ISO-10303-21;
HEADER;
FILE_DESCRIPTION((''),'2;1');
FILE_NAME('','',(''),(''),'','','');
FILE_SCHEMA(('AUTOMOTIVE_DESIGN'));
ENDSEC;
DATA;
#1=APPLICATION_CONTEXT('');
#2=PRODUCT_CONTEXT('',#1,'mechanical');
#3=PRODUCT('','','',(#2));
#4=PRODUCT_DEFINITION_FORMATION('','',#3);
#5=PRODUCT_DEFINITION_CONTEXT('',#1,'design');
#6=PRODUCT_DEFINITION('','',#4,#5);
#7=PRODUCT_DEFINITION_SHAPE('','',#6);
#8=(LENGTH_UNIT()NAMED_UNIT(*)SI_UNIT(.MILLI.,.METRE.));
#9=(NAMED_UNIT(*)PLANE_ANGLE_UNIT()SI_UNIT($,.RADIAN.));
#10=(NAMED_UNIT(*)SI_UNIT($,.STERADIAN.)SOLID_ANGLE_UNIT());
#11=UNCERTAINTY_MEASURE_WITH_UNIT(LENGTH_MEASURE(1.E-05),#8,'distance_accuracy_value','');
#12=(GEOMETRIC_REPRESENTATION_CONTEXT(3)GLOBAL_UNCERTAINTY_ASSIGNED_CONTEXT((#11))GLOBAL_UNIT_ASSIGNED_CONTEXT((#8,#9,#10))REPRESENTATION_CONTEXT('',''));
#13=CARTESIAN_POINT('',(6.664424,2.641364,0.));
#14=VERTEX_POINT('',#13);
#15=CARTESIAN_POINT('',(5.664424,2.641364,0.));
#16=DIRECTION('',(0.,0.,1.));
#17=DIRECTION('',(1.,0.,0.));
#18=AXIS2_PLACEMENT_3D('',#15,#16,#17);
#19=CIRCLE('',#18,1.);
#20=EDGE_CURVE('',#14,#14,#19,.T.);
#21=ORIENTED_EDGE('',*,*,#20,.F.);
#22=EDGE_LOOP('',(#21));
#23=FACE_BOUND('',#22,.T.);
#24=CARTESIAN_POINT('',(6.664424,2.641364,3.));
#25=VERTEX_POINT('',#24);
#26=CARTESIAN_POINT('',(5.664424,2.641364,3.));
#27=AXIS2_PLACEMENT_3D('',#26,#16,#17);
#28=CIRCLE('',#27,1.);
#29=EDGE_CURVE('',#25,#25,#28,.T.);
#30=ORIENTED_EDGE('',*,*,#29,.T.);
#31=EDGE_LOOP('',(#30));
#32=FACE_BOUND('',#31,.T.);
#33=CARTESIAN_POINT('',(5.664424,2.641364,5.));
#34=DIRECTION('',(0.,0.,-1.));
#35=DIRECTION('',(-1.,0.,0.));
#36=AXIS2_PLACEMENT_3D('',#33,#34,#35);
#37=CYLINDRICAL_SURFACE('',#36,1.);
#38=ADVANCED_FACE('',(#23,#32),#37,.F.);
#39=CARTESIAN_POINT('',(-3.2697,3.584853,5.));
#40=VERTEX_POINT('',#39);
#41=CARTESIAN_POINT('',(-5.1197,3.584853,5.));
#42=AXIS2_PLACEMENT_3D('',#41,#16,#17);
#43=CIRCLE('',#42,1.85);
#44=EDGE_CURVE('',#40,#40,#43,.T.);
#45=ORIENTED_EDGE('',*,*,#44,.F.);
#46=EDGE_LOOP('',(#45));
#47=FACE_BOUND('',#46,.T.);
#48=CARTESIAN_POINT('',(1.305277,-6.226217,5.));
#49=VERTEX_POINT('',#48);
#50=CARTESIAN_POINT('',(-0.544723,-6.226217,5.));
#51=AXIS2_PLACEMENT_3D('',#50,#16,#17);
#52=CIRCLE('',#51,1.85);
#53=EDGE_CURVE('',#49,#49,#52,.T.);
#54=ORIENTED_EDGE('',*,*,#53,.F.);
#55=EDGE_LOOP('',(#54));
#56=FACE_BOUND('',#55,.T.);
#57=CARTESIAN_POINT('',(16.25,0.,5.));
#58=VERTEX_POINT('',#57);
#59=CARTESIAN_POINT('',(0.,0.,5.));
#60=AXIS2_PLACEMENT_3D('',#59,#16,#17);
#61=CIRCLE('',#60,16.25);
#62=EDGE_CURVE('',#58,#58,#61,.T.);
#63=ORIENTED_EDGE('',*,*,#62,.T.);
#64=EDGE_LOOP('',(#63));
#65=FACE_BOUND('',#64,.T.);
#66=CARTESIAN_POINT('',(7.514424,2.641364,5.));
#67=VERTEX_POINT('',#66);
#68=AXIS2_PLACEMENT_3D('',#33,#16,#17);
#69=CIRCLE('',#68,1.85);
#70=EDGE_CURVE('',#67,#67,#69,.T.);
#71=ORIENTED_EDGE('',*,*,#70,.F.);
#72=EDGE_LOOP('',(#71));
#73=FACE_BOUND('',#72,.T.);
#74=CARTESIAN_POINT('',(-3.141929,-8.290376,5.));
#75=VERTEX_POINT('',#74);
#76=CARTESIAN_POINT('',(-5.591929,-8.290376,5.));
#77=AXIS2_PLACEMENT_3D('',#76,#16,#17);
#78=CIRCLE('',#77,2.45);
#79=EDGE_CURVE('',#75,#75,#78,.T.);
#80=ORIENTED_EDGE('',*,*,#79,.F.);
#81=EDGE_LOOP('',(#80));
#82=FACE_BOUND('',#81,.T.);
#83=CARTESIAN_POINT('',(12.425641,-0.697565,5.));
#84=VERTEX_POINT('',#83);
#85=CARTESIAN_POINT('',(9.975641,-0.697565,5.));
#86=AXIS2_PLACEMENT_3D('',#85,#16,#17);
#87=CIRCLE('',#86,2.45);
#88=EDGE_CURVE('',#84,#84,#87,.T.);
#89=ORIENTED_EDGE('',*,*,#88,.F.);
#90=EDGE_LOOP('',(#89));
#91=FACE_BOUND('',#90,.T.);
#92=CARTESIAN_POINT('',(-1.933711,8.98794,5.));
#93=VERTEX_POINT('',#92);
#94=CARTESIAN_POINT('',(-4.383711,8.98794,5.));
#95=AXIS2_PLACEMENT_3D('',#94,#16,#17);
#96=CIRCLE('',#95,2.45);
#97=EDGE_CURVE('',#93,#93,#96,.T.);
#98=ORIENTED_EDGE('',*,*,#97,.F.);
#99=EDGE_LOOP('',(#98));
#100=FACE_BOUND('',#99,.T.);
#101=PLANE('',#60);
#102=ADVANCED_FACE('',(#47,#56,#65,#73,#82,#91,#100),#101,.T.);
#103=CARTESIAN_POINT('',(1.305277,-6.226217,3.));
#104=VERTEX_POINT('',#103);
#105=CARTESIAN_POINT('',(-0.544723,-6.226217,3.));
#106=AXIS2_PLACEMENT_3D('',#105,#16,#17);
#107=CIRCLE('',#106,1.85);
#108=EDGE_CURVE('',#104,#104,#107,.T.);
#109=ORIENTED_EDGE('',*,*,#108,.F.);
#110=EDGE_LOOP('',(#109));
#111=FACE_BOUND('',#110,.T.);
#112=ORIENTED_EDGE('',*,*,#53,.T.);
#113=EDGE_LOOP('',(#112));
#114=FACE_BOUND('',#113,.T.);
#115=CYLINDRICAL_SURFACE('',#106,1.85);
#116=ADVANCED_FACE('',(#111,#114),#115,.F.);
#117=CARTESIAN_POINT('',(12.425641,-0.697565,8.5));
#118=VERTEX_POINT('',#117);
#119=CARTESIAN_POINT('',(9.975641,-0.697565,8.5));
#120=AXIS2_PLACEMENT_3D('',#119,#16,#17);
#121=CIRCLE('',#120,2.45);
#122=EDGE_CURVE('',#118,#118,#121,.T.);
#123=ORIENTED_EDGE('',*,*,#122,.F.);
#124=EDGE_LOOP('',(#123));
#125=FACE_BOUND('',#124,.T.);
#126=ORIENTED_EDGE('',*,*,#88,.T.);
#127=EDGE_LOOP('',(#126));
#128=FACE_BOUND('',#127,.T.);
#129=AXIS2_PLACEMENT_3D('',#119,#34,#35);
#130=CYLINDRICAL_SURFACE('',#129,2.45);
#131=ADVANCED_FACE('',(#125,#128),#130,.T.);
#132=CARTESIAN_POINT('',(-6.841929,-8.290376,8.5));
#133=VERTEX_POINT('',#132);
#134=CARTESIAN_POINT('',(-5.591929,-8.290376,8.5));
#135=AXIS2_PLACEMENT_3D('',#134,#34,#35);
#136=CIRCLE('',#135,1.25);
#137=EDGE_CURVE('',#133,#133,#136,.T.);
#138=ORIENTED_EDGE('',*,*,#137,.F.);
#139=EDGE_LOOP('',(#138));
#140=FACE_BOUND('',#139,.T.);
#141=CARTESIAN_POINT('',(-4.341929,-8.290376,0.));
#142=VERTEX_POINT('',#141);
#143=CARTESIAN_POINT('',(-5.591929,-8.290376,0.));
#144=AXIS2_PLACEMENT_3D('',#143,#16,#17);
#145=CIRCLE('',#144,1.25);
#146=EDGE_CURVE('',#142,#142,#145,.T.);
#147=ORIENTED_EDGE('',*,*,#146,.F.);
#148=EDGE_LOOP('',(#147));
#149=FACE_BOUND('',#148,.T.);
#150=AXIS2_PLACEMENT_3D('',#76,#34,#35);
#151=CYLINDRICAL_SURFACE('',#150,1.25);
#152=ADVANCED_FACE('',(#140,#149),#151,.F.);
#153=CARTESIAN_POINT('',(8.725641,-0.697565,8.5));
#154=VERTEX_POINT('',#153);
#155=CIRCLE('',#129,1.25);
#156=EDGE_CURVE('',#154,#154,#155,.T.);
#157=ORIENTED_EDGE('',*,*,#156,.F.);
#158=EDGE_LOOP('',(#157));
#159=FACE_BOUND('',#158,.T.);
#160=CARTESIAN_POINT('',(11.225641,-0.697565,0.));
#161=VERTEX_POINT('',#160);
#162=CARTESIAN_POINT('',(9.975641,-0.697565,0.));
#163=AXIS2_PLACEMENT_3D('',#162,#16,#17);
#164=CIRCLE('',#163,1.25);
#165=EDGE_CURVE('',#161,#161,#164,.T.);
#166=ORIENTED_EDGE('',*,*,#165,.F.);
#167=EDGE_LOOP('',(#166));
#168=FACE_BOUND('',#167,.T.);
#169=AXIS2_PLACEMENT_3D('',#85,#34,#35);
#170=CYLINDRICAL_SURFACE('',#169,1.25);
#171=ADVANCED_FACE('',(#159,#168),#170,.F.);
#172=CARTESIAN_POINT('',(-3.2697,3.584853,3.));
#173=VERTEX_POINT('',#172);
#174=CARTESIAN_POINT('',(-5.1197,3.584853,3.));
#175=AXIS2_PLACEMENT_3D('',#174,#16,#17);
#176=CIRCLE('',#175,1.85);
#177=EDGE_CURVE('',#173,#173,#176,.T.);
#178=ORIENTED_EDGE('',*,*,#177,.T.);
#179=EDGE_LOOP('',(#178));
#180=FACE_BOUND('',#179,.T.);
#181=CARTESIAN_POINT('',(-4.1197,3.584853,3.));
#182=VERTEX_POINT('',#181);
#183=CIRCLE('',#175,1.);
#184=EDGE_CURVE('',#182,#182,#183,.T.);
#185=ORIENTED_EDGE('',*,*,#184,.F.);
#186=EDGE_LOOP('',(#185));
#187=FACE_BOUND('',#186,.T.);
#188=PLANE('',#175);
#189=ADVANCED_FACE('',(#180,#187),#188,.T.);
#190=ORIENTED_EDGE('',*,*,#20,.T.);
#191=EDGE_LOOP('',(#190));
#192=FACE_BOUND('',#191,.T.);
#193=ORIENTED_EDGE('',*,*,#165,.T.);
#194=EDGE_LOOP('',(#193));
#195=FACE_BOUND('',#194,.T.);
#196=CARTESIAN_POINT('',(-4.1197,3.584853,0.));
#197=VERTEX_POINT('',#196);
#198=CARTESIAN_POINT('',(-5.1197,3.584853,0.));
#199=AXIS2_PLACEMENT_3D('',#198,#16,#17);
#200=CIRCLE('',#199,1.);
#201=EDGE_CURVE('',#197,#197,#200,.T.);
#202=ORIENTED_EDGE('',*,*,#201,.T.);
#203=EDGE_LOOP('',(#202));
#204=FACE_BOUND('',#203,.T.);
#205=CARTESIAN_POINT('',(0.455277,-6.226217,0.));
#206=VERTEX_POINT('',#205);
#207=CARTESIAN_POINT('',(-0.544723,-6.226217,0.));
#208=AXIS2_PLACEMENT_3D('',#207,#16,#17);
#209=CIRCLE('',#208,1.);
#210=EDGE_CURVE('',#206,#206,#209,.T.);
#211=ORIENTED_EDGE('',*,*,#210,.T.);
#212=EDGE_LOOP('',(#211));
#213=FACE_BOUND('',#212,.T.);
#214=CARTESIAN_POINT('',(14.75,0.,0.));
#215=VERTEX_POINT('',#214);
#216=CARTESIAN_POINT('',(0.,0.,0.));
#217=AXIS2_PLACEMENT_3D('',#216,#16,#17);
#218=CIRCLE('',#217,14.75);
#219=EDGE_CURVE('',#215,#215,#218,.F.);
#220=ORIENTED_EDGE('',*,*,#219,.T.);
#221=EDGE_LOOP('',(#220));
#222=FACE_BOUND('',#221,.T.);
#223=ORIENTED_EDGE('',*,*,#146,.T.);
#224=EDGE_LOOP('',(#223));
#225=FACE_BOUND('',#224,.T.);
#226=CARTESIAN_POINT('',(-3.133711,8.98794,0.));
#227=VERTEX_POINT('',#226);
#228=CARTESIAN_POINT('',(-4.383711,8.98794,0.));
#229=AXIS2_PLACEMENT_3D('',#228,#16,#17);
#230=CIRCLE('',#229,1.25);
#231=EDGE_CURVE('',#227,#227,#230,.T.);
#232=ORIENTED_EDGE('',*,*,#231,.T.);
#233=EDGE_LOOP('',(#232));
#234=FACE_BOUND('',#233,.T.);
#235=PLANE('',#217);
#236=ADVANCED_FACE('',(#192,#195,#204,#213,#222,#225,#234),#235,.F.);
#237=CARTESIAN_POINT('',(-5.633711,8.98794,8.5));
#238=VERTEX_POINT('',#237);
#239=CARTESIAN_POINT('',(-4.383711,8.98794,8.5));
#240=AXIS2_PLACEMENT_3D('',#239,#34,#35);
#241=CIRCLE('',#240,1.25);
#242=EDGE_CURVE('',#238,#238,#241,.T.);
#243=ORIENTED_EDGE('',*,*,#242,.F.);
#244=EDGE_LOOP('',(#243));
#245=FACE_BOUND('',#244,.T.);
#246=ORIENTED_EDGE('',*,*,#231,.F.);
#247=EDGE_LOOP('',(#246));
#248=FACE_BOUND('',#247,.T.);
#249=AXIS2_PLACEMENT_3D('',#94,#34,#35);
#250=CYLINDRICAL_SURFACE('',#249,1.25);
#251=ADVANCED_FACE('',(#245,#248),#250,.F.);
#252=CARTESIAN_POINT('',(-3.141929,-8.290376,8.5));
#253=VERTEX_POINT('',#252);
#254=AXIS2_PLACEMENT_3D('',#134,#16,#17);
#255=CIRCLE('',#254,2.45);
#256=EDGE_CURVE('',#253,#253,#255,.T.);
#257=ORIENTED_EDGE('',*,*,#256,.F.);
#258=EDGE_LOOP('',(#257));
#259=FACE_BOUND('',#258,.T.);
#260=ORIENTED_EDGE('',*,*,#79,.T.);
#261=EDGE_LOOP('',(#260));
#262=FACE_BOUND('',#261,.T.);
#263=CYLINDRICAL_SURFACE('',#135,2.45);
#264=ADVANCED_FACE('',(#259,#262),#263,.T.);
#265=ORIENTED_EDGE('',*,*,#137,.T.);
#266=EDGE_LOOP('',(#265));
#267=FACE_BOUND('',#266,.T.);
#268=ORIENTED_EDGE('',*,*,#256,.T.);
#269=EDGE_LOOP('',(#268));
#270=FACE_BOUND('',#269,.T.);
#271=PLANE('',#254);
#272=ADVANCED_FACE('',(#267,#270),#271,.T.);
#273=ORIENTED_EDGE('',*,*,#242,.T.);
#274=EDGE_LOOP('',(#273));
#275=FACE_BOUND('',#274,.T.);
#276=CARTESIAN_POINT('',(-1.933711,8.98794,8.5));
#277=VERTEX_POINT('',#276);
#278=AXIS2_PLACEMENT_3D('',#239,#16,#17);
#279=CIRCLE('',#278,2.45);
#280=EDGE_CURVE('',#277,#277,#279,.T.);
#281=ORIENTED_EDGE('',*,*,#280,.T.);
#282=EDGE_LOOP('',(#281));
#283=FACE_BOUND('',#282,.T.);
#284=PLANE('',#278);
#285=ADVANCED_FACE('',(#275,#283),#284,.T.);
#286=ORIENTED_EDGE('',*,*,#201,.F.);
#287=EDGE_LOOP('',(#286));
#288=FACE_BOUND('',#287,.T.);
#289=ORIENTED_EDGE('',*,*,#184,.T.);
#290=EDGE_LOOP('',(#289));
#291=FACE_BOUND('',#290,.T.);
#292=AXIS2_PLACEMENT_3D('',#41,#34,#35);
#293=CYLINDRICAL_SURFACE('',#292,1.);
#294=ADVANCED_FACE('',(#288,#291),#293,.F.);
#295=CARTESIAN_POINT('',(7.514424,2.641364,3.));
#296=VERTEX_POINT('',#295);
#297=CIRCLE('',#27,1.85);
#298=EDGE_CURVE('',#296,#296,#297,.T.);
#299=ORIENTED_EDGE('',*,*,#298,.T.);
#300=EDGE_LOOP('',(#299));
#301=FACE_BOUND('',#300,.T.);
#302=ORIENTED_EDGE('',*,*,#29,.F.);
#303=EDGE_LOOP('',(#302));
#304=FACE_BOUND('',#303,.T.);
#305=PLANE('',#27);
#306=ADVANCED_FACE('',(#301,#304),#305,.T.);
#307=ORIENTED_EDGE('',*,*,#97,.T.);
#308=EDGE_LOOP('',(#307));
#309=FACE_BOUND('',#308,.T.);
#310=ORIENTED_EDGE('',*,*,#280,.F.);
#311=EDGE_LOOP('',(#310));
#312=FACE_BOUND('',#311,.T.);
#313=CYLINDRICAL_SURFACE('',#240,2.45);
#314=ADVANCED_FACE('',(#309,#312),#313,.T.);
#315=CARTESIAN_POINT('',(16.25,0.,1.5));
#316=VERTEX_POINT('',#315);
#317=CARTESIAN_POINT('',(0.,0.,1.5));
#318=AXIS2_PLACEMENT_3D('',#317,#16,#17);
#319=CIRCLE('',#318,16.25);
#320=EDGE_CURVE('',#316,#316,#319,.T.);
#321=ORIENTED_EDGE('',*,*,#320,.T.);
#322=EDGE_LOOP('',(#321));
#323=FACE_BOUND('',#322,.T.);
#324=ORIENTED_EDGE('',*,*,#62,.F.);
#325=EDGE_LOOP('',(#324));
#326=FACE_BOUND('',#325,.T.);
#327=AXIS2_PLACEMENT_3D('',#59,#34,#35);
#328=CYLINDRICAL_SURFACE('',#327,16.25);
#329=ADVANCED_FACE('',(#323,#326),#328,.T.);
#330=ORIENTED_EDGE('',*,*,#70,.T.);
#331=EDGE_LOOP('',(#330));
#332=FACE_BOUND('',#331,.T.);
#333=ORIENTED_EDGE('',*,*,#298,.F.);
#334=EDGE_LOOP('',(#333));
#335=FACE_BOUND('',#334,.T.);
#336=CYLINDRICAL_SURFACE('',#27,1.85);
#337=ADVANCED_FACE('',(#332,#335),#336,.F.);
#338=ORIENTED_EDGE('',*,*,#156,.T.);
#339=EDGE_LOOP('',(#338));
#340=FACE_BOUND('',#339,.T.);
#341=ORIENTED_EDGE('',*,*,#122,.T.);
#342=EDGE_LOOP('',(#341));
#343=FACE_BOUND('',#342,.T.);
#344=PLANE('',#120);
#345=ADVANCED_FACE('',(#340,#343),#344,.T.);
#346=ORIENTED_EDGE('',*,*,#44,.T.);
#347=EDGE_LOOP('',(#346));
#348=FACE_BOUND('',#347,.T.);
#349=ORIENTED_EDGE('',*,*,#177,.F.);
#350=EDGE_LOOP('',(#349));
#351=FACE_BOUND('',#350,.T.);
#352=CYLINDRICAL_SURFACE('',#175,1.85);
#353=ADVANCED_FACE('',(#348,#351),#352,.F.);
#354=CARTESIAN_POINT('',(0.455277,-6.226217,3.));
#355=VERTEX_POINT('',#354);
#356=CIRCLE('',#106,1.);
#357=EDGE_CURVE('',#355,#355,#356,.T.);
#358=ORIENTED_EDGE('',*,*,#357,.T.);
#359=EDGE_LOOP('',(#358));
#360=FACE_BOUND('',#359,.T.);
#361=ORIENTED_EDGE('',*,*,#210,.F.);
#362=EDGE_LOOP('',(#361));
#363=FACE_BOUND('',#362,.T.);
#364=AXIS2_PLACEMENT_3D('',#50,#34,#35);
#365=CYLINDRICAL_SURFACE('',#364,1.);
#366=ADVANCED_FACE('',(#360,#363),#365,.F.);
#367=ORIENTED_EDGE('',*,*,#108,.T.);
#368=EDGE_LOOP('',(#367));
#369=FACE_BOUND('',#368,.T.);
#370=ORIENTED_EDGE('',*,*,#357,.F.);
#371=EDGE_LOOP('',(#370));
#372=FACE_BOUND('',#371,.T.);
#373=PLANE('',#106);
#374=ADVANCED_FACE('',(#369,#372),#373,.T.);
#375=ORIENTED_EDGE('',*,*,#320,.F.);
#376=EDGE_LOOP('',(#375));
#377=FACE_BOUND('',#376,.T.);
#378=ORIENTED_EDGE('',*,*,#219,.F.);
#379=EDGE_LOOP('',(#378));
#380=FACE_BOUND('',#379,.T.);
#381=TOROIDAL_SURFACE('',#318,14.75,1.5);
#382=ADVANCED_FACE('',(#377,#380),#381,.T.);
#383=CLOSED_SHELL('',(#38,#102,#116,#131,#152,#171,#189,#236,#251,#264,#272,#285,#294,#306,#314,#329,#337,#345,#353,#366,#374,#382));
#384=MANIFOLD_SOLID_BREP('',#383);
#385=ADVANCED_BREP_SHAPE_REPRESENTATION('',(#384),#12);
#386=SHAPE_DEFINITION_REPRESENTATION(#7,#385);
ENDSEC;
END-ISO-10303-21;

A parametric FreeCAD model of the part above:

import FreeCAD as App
import Part
import Sketcher
from FreeCAD import Vector
Q = App.Units.Quantity


def edges_at(feature, points):
    """Names of the edges that pass closest to the given points."""
    edges = feature.Shape.Edges
    near = lambda p: min(range(len(edges)), key=lambda i: edges[i].distToShape(Part.Vertex(*p))[0])
    return sorted({f"Edge{near(p) + 1}" for p in points})

doc = App.newDocument("Part")
body = doc.addObject("PartDesign::Body", "Body")

sketch1 = doc.addObject("Sketcher::SketchObject", "Sketch")
body.addObject(sketch1)
sketch1.AttachmentSupport = (doc.XY_Plane, [""])
sketch1.MapMode = "FlatFace"
sketch1.addGeometry([
    Part.Circle(Vector(0, 0, 0), Vector(0, 0, 1), 16.25),
    Part.Circle(Vector(-5.591929, -8.290376, 0), Vector(0, 0, 1), 1.25),
    Part.Circle(Vector(-0.544723, -6.226217, 0), Vector(0, 0, 1), 1),
    Part.Circle(Vector(9.975641, -0.697565, 0), Vector(0, 0, 1), 1.25),
    Part.Circle(Vector(-5.1197, 3.584853, 0), Vector(0, 0, 1), 1),
    Part.Circle(Vector(-4.383711, 8.98794, 0), Vector(0, 0, 1), 1.25),
    Part.Circle(Vector(5.664424, 2.641364, 0), Vector(0, 0, 1), 1),
], False)
sketch1.addConstraint([
    Sketcher.Constraint("Coincident", 0, 3, -1, 1),
    Sketcher.Constraint("Equal", 1, 3),
    Sketcher.Constraint("Equal", 2, 4),
    Sketcher.Constraint("Equal", 3, 5),
    Sketcher.Constraint("Equal", 4, 6),
    Sketcher.Constraint("Diameter", 2, Q("2 mm")),
    Sketcher.Constraint("Diameter", 0, Q("32.5 mm")),
    Sketcher.Constraint("Diameter", 1, Q("2.5 mm")),
    Sketcher.Constraint("DistanceX", 4, 3, -1, 1, Q("5.1197 mm")),
    Sketcher.Constraint("DistanceX", 1, 3, -1, 1, Q("5.591929 mm")),
    Sketcher.Constraint("DistanceX", -1, 1, 3, 3, Q("9.975641 mm")),
    Sketcher.Constraint("DistanceX", 5, 3, -1, 1, Q("4.383711 mm")),
    Sketcher.Constraint("DistanceY", -1, 1, 5, 3, Q("8.98794 mm")),
    Sketcher.Constraint("DistanceY", 1, 3, 2, 3, Q("2.064159 mm")),
    Sketcher.Constraint("DistanceY", 1, 3, 3, 3, Q("7.592811 mm")),
    Sketcher.Constraint("DistanceY", 2, 3, 4, 3, Q("9.81107 mm")),
    Sketcher.Constraint("DistanceX", 5, 3, 2, 3, Q("3.838988 mm")),
    Sketcher.Constraint("DistanceY", 3, 3, 6, 3, Q("3.338929 mm")),
    Sketcher.Constraint("DistanceY", 1, 3, -1, 1, Q("8.290376 mm")),
    Sketcher.Constraint("DistanceX", -1, 1, 6, 3, Q("5.664424 mm")),
])
pad1 = doc.addObject("PartDesign::Pad", "Pad")
body.addObject(pad1)
pad1.Profile = sketch1
pad1.Length = 5
doc.recompute()

fillet = doc.addObject("PartDesign::Fillet", "Fillet")
body.addObject(fillet)
fillet.Base = (pad1, edges_at(pad1, [(-16.25, 0, 0)]))
fillet.Radius = 1.5

sketch2 = doc.addObject("Sketcher::SketchObject", "Sketch001")
body.addObject(sketch2)
sketch2.AttachmentSupport = (doc.XY_Plane, [""])
sketch2.MapMode = "FlatFace"
sketch2.AttachmentOffset = App.Placement(Vector(0, 0, 5), App.Rotation())
sketch2.addGeometry([
    Part.Circle(Vector(-5.591929, -8.290376, 0), Vector(0, 0, 1), 2.45),
    Part.Circle(Vector(-4.383711, 8.98794, 0), Vector(0, 0, 1), 2.45),
    Part.Circle(Vector(9.975641, -0.697565, 0), Vector(0, 0, 1), 2.45),
], False)
sketch2.addConstraint([
    Sketcher.Constraint("Equal", 0, 1),
    Sketcher.Constraint("Equal", 1, 2),
    Sketcher.Constraint("Diameter", 0, Q("4.9 mm")),
    Sketcher.Constraint("DistanceX", 0, 3, -1, 1, Q("5.591929 mm")),
    Sketcher.Constraint("DistanceX", 1, 3, -1, 1, Q("4.383711 mm")),
    Sketcher.Constraint("DistanceY", -1, 1, 1, 3, Q("8.98794 mm")),
    Sketcher.Constraint("DistanceX", -1, 1, 2, 3, Q("9.975641 mm")),
    Sketcher.Constraint("DistanceY", 0, 3, 2, 3, Q("7.592811 mm")),
    Sketcher.Constraint("DistanceY", 0, 3, -1, 1, Q("8.290376 mm")),
])
pad2 = doc.addObject("PartDesign::Pad", "Pad001")
body.addObject(pad2)
pad2.Profile = sketch2
pad2.Length = 3.5

sketch3 = doc.addObject("Sketcher::SketchObject", "Sketch002")
body.addObject(sketch3)
sketch3.AttachmentSupport = (doc.XY_Plane, [""])
sketch3.MapMode = "FlatFace"
sketch3.addGeometry([
    Part.Circle(Vector(-4.383711, 8.98794, 0), Vector(0, 0, 1), 1.25),
    Part.Circle(Vector(9.975641, -0.697565, 0), Vector(0, 0, 1), 1.25),
    Part.Circle(Vector(-5.591929, -8.290376, 0), Vector(0, 0, 1), 1.25),
], False)
sketch3.addConstraint([
    Sketcher.Constraint("Equal", 0, 1),
    Sketcher.Constraint("Equal", 1, 2),
    Sketcher.Constraint("Diameter", 0, Q("2.5 mm")),
    Sketcher.Constraint("DistanceX", 0, 3, -1, 1, Q("4.383711 mm")),
    Sketcher.Constraint("DistanceY", -1, 1, 0, 3, Q("8.98794 mm")),
    Sketcher.Constraint("DistanceX", -1, 1, 1, 3, Q("9.975641 mm")),
    Sketcher.Constraint("DistanceX", 2, 3, -1, 1, Q("5.591929 mm")),
    Sketcher.Constraint("DistanceY", 2, 3, 1, 3, Q("7.592811 mm")),
    Sketcher.Constraint("DistanceY", 1, 3, -1, 1, Q("0.697565 mm")),
])
pocket1 = doc.addObject("PartDesign::Pocket", "Pocket")
body.addObject(pocket1)
pocket1.Profile = sketch3
pocket1.Type = "ThroughAll"
pocket1.Midplane = True

sketch4 = doc.addObject("Sketcher::SketchObject", "Sketch003")
body.addObject(sketch4)
sketch4.AttachmentSupport = (doc.XY_Plane, [""])
sketch4.MapMode = "FlatFace"
sketch4.AttachmentOffset = App.Placement(Vector(0, 0, 5), App.Rotation())
sketch4.addGeometry([
    Part.Circle(Vector(5.664424, 2.641364, 0), Vector(0, 0, 1), 1.85),
    Part.Circle(Vector(-5.1197, 3.584853, 0), Vector(0, 0, 1), 1.85),
    Part.Circle(Vector(-0.544723, -6.226217, 0), Vector(0, 0, 1), 1.85),
], False)
sketch4.addConstraint([
    Sketcher.Constraint("Equal", 0, 1),
    Sketcher.Constraint("Equal", 1, 2),
    Sketcher.Constraint("Diameter", 0, Q("3.7 mm")),
    Sketcher.Constraint("DistanceX", 1, 3, -1, 1, Q("5.1197 mm")),
    Sketcher.Constraint("DistanceY", 0, 3, 1, 3, Q("0.943489 mm")),
    Sketcher.Constraint("DistanceY", 2, 3, 1, 3, Q("9.81107 mm")),
    Sketcher.Constraint("DistanceX", -1, 1, 0, 3, Q("5.664424 mm")),
    Sketcher.Constraint("DistanceY", -1, 1, 0, 3, Q("2.641364 mm")),
    Sketcher.Constraint("DistanceX", 2, 3, -1, 1, Q("0.544723 mm")),
])
pocket2 = doc.addObject("PartDesign::Pocket", "Pocket001")
body.addObject(pocket2)
pocket2.Profile = sketch4
pocket2.Length = 2

doc.recompute()
